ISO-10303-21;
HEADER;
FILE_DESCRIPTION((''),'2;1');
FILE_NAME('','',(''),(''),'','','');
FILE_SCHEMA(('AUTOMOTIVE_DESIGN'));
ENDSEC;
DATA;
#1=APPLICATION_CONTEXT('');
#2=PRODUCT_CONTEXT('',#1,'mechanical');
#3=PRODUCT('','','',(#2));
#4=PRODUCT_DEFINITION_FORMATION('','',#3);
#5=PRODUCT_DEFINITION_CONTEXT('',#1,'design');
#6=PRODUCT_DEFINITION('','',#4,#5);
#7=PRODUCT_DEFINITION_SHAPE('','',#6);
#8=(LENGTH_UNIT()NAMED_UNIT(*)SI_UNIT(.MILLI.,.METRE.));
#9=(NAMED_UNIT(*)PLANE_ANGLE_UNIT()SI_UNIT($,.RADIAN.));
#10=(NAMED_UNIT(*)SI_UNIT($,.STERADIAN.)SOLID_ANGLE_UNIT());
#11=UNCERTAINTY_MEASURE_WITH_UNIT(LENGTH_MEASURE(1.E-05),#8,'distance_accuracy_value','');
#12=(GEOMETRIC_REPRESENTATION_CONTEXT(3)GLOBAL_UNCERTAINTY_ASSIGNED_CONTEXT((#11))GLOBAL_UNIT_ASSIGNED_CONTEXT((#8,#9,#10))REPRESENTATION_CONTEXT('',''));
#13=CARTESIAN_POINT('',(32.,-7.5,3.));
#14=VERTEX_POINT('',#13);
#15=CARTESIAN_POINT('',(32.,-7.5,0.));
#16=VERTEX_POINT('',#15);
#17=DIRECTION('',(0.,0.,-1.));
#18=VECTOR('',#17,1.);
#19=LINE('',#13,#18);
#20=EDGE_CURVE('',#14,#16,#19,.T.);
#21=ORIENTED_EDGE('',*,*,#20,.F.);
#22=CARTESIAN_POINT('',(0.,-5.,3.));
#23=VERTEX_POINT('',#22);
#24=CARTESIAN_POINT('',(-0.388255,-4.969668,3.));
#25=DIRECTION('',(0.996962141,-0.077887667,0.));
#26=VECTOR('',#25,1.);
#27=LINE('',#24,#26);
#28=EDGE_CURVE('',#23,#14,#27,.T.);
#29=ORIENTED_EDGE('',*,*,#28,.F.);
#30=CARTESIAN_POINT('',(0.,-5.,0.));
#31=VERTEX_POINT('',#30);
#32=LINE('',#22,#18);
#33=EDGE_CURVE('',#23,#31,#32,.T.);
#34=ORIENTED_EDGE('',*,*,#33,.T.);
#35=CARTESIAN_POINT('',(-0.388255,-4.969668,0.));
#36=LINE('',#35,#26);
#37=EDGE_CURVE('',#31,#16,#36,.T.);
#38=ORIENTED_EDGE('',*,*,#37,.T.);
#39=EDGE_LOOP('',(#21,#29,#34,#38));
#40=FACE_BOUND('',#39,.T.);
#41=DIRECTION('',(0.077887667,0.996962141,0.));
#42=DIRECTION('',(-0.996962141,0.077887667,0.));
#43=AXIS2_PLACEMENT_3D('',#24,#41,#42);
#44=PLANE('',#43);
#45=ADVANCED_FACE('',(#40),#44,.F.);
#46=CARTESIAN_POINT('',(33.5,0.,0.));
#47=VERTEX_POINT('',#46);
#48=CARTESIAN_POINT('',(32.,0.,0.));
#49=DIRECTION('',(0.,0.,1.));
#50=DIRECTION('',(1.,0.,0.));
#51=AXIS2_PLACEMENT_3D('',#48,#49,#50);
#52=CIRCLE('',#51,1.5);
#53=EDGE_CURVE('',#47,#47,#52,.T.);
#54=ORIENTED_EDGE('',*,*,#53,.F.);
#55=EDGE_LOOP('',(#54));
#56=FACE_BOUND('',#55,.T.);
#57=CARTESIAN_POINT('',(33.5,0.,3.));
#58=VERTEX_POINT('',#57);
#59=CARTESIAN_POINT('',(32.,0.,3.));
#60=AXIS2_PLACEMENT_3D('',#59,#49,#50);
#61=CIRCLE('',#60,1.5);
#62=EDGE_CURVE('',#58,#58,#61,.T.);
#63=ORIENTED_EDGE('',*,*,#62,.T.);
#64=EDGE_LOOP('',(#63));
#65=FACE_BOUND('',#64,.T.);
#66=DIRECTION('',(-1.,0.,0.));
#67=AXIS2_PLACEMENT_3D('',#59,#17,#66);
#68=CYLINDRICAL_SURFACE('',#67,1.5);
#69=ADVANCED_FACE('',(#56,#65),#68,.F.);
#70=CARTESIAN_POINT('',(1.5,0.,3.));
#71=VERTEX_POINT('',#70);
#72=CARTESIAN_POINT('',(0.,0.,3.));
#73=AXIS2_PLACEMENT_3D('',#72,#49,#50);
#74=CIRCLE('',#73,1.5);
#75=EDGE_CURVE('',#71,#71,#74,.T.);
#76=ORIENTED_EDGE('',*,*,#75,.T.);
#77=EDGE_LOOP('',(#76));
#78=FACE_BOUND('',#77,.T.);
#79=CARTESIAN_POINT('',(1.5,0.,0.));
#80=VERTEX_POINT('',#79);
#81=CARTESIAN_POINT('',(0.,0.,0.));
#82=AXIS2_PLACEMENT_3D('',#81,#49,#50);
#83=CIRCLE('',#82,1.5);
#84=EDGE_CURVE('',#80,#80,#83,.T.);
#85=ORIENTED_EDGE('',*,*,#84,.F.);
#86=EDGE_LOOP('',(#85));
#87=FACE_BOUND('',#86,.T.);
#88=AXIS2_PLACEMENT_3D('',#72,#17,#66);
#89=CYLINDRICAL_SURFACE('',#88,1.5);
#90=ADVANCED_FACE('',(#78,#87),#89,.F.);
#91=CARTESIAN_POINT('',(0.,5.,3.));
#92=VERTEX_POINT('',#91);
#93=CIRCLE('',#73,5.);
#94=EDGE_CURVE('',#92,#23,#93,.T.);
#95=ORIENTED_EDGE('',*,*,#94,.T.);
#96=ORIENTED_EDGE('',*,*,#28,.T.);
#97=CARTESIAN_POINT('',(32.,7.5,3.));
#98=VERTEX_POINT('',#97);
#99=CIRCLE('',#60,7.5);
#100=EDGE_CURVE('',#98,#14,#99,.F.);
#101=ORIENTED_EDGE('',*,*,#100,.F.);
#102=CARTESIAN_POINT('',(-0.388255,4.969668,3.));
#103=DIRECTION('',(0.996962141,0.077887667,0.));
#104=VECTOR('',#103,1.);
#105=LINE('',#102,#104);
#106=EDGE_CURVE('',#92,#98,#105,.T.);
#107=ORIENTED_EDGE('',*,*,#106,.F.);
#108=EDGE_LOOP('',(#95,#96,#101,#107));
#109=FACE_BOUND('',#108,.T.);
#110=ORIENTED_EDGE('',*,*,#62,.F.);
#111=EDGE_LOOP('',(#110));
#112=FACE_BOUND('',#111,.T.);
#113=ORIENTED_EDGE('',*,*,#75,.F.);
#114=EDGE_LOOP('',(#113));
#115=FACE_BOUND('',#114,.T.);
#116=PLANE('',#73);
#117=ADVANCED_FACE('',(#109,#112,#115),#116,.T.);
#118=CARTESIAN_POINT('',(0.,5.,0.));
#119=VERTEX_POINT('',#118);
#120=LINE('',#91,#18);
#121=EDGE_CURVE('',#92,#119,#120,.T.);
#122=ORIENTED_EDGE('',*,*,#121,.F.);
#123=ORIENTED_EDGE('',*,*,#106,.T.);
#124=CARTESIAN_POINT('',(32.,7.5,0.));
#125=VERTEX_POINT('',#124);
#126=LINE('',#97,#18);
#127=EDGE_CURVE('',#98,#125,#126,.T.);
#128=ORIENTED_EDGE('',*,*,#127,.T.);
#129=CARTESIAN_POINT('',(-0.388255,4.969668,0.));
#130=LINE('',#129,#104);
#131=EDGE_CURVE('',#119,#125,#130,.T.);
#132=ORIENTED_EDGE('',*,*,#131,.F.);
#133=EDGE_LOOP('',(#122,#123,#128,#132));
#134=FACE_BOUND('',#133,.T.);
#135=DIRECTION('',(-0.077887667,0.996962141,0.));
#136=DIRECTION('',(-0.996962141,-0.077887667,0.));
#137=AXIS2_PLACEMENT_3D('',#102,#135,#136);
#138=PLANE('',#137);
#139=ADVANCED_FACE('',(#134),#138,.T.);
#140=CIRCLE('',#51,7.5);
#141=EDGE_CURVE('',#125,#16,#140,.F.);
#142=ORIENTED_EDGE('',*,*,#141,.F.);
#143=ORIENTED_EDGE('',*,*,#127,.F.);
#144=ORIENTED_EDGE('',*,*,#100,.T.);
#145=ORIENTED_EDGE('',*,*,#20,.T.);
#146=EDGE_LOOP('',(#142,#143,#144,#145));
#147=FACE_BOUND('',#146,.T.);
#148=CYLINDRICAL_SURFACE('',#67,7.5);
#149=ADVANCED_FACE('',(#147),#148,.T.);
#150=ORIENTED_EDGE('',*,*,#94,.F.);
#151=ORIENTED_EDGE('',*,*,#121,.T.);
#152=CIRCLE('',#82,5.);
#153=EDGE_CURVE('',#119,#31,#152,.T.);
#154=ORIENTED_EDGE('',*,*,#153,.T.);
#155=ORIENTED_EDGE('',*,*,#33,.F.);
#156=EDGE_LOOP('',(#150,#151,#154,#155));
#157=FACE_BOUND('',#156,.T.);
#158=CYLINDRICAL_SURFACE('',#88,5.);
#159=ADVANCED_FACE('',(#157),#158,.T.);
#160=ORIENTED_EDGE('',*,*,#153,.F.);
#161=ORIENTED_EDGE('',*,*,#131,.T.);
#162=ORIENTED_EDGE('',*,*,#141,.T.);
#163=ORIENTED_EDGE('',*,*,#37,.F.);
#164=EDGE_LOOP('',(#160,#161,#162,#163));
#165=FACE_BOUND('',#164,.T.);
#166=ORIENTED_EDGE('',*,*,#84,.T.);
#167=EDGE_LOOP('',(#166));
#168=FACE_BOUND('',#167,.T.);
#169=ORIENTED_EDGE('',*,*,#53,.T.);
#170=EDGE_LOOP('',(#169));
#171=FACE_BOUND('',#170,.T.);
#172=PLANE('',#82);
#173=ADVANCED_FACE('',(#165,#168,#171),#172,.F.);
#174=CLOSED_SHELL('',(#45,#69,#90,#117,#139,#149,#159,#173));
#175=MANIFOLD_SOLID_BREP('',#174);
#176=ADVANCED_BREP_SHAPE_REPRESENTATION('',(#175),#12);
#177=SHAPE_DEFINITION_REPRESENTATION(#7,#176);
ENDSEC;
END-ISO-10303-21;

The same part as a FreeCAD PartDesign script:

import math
import FreeCAD as App
import Part
import Sketcher
from FreeCAD import Vector
Q = App.Units.Quantity

doc = App.newDocument("Part")
body = doc.addObject("PartDesign::Body", "Body")

sketch1 = body.newObject("Sketcher::SketchObject", "Sketch")
sketch1.AttachmentSupport = (doc.getObject("XY_Plane"), [""])
sketch1.MapMode = "FlatFace"
sketch1.addGeometry([
    Part.ArcOfCircle(Part.Circle(Vector(32, 0, 0), Vector(0, 0, 1), 7.5), math.radians(-90), math.radians(90)),
    Part.LineSegment(Vector(32, 7.5, 0), Vector(0, 5, 0)),
    Part.ArcOfCircle(Part.Circle(Vector(0, 0, 0), Vector(0, 0, 1), 5), math.radians(90), math.radians(270)),
    Part.LineSegment(Vector(0, -5, 0), Vector(32, -7.5, 0)),
    Part.Circle(Vector(32, 0, 0), Vector(0, 0, 1), 1.5),
    Part.Circle(Vector(0, 0, 0), Vector(0, 0, 1), 1.5),
], False)
sketch1.addConstraint([
    Sketcher.Constraint("Coincident", 0, 2, 1, 1),
    Sketcher.Constraint("Coincident", 1, 2, 2, 1),
    Sketcher.Constraint("Coincident", 2, 2, 3, 1),
    Sketcher.Constraint("Coincident", 3, 2, 0, 1),
    Sketcher.Constraint("Coincident", 2, 3, -1, 1),
    Sketcher.Constraint("Coincident", 5, 3, -1, 1),
    Sketcher.Constraint("Coincident", 4, 3, 0, 3),
    Sketcher.Constraint("Equal", 4, 5),
    Sketcher.Constraint("Symmetric", 0, 2, 3, 2, -1),
    Sketcher.Constraint("PointOnObject", 1, 2, -2),
    Sketcher.Constraint("PointOnObject", 2, 2, -2),
    Sketcher.Constraint("Vertical", 4, 3, 0, 2),
    Sketcher.Constraint("Diameter", 4, Q("3 mm")),
    Sketcher.Constraint("Radius", 2, Q("5 mm")),
    Sketcher.Constraint("Radius", 0, Q("7.5 mm")),
    Sketcher.Constraint("DistanceX", -1, 1, 0, 3, Q("32 mm")),
])
pad1 = body.newObject("PartDesign::Pad", "Pad")
pad1.Profile = sketch1
pad1.Length = 3

doc.recompute()
